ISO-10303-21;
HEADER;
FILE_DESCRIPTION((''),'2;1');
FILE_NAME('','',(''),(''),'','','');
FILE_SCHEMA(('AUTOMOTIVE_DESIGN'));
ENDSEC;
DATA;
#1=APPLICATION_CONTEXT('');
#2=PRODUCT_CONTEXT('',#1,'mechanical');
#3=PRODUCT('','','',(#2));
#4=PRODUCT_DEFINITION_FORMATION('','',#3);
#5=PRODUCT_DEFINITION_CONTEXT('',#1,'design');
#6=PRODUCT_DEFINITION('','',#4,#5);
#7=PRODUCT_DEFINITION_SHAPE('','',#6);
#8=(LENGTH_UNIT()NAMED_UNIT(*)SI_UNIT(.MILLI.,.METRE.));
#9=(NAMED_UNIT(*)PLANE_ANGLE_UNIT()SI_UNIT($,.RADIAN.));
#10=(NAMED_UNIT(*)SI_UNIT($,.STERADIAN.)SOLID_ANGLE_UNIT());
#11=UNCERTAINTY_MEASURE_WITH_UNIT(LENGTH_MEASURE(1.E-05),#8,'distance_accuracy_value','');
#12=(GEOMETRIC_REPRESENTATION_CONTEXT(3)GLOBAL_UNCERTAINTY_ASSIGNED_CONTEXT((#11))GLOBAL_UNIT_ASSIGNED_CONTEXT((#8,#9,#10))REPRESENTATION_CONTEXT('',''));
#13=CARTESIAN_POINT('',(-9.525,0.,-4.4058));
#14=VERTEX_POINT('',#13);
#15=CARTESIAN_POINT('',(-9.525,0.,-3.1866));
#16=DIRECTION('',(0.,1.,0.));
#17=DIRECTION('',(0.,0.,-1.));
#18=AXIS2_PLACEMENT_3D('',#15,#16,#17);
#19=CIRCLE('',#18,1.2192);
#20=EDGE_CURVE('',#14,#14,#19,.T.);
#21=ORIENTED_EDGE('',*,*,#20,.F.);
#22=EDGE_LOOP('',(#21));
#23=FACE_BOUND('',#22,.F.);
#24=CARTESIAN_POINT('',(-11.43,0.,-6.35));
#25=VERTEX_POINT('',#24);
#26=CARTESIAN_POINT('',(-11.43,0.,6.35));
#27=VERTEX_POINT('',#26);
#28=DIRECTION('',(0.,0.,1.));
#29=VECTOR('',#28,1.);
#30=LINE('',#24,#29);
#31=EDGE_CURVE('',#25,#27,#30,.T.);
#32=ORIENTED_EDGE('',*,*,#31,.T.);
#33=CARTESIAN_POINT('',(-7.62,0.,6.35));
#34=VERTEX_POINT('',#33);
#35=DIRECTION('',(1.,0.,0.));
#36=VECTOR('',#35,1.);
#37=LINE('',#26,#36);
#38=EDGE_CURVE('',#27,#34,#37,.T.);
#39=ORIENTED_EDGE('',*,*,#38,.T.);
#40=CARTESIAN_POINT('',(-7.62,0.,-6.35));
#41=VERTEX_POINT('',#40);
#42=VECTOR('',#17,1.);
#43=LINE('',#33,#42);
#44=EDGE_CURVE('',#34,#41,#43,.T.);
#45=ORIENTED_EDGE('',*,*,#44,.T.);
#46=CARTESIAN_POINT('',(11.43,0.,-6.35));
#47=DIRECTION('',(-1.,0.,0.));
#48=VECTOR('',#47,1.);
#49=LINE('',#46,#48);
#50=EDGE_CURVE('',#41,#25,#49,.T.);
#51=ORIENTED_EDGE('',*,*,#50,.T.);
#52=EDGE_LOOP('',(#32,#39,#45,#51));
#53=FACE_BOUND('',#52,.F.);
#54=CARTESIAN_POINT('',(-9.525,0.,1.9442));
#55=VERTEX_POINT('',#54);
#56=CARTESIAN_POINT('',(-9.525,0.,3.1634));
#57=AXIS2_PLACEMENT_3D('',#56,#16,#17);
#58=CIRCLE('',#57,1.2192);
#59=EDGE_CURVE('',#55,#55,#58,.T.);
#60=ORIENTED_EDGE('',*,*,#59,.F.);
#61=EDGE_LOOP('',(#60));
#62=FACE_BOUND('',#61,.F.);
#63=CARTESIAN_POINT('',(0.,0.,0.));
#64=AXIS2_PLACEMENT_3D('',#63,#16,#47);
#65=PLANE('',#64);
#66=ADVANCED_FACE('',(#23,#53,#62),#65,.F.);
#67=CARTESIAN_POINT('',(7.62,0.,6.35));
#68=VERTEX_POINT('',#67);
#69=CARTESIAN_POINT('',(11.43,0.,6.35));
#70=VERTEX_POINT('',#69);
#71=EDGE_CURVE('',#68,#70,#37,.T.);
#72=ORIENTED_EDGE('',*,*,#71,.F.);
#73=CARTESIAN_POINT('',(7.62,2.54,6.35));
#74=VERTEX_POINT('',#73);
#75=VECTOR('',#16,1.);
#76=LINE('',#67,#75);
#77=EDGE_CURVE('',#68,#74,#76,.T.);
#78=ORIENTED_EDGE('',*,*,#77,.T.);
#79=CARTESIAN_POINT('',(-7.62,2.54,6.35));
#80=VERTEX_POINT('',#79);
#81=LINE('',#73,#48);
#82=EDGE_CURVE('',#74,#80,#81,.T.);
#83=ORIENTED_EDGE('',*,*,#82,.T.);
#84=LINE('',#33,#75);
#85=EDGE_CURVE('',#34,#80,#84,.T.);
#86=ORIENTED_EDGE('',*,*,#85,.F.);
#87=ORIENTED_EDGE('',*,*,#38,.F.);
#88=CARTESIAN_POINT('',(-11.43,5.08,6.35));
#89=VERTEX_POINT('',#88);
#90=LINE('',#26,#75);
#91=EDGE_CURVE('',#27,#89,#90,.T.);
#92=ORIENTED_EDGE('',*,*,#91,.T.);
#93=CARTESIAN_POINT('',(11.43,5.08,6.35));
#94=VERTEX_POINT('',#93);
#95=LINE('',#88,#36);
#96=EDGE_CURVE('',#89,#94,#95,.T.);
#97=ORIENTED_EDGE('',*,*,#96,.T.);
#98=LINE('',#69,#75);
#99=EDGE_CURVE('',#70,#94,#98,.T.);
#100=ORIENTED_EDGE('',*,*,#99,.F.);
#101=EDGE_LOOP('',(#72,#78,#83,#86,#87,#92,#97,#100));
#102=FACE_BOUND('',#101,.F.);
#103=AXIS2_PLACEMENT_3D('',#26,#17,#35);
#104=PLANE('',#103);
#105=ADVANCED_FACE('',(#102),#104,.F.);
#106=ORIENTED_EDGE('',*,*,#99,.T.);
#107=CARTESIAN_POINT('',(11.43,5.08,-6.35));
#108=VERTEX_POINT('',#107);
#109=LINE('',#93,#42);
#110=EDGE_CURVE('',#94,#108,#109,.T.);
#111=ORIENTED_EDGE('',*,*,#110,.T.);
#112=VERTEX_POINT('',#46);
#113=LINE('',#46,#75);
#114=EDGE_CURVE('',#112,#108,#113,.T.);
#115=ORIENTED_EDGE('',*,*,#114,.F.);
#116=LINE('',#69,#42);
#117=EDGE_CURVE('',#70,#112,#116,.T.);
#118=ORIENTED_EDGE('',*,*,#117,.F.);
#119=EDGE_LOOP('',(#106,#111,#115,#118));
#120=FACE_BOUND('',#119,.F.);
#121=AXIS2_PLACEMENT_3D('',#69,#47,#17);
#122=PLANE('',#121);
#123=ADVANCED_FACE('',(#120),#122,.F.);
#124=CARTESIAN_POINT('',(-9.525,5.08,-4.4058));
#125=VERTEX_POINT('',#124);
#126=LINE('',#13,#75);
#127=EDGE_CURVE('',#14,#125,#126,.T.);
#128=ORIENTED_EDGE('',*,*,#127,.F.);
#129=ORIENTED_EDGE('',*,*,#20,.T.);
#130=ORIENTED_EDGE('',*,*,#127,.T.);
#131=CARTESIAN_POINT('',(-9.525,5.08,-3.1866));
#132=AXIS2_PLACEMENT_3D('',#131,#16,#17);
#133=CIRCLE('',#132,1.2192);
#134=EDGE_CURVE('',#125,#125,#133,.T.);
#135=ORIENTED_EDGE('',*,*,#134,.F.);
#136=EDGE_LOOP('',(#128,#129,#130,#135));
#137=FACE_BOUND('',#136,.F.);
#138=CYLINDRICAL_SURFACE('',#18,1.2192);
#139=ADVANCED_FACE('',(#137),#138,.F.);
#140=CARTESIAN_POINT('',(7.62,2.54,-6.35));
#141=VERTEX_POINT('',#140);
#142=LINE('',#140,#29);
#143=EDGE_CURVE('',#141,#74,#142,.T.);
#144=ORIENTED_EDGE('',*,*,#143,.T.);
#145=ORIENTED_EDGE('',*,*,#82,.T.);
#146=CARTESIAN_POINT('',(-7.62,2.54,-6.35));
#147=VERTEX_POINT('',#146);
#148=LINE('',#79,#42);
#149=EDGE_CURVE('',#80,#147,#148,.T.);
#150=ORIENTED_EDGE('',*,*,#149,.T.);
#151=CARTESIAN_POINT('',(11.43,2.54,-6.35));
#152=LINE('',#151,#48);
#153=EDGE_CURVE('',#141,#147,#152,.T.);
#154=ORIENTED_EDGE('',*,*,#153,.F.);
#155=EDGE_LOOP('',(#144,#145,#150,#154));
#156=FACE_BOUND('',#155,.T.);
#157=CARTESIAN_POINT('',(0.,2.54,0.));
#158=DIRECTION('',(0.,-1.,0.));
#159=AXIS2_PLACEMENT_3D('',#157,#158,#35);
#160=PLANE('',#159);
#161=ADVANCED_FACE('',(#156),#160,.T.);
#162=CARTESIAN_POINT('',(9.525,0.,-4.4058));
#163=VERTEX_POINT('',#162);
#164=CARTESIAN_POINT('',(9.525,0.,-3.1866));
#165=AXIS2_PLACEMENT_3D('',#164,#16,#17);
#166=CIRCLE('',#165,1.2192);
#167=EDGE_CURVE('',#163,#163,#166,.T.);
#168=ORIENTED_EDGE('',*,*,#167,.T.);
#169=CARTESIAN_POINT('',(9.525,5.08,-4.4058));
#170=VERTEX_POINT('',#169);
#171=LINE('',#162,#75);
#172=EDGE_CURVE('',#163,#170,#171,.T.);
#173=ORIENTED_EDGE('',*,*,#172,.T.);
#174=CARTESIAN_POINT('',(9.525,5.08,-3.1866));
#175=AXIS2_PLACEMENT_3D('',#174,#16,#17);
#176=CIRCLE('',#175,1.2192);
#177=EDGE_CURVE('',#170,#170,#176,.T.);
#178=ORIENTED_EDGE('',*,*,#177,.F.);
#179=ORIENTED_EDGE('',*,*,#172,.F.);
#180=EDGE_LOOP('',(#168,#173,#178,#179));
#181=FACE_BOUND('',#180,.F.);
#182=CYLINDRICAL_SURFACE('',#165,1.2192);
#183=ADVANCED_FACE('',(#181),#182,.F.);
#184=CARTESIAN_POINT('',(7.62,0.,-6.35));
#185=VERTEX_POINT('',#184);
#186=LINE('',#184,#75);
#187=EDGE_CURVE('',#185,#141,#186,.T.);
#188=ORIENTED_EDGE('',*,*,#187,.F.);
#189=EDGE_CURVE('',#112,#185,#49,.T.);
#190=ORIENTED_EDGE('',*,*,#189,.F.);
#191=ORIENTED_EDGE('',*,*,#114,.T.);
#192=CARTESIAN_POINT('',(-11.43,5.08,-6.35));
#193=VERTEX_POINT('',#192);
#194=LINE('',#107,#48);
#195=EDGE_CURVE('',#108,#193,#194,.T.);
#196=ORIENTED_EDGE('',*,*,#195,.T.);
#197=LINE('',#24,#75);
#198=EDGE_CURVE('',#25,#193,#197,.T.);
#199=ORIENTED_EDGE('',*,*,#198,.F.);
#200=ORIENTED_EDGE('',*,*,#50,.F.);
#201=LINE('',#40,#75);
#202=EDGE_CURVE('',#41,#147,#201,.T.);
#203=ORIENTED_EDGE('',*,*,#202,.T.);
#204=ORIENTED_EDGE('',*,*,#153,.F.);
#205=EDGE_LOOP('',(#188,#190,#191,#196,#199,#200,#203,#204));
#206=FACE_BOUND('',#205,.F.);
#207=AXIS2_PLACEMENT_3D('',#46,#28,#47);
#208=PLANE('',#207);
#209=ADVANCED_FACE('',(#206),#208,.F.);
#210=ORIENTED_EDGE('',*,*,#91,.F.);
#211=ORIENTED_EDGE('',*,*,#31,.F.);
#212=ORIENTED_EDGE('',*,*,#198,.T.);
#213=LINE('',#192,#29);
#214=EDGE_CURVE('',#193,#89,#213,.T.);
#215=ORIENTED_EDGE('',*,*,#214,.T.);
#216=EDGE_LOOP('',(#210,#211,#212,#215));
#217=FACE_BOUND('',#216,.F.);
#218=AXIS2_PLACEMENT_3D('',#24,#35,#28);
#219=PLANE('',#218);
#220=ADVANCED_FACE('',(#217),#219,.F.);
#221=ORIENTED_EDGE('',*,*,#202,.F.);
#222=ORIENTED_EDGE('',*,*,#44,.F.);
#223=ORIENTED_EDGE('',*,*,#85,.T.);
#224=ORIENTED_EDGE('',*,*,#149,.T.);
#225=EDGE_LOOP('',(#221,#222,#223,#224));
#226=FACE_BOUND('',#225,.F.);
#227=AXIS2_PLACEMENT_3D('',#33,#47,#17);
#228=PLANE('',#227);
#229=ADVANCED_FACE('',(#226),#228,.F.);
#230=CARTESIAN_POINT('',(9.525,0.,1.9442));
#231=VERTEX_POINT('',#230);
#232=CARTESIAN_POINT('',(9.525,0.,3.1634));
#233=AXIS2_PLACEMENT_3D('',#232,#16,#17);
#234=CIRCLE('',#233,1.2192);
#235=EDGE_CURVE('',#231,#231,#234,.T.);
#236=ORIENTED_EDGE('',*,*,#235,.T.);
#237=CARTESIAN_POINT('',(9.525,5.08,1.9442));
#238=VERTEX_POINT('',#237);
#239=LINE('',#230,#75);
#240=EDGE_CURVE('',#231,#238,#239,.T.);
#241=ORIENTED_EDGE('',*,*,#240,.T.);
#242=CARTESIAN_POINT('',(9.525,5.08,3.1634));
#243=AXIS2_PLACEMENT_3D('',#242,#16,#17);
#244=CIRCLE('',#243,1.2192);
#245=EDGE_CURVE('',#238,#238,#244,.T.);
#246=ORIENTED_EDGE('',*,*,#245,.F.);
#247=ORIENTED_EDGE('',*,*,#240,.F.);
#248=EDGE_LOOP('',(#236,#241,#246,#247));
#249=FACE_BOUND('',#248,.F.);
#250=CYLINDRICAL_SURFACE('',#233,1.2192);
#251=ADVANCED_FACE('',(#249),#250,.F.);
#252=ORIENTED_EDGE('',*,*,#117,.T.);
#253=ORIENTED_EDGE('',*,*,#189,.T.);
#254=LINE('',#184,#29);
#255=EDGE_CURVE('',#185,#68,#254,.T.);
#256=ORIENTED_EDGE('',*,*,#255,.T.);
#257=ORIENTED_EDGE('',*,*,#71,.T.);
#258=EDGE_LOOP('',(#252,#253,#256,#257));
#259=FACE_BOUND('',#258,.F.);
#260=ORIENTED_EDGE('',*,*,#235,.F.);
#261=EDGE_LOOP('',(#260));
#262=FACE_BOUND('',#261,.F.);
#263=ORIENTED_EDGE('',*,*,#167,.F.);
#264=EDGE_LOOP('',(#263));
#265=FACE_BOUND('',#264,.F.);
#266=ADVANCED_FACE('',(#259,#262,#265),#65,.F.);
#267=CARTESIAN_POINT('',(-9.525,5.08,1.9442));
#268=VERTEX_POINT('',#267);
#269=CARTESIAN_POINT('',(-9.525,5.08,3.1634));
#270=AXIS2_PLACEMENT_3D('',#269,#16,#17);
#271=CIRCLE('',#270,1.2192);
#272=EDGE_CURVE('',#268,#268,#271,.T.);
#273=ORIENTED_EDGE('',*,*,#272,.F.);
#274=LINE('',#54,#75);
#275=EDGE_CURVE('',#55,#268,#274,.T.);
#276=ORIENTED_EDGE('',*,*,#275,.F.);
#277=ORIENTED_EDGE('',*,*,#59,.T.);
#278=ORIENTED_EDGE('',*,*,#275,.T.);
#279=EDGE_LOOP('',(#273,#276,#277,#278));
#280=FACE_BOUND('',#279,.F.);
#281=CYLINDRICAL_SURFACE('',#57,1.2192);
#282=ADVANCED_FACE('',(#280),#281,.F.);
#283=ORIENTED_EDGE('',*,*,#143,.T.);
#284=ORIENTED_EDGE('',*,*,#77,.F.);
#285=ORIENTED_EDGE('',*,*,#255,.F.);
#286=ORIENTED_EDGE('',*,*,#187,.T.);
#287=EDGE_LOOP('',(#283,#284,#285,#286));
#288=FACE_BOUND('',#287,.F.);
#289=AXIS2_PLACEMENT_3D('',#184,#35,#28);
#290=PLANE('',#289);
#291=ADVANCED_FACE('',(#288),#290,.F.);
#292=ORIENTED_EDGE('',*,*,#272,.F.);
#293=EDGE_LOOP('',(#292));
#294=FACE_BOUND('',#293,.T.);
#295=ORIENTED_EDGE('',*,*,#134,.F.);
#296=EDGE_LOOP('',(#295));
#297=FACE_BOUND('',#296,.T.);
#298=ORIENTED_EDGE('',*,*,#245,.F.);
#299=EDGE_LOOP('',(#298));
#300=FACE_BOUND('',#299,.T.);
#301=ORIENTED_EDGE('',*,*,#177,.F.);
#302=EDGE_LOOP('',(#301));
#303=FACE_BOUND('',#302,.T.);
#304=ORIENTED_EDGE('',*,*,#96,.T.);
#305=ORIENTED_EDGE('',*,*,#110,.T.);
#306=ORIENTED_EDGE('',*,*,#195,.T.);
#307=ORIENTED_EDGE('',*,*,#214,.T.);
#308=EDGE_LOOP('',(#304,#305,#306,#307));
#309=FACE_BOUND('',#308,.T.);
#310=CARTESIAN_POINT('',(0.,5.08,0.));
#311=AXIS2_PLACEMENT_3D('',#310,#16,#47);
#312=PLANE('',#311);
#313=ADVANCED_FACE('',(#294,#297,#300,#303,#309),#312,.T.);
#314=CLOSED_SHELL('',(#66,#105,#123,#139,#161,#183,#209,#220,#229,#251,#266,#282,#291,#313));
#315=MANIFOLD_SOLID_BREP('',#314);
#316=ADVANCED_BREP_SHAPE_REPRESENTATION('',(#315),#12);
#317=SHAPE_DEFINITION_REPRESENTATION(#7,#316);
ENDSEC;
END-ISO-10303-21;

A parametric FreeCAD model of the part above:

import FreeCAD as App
import Part
import Sketcher

V = App.Vector
Q = App.Units.Quantity


def add_polygon(sketch, points):
    """Adds a closed chain of lines whose ends are joined by coincident constraints."""
    first, n = sketch.GeometryCount, len(points)
    for a, b in zip(points, points[1:] + points[:1]):
        sketch.addGeometry(Part.LineSegment(App.Vector(*a, 0), App.Vector(*b, 0)), False)
    for i in range(n):
        sketch.addConstraint(Sketcher.Constraint("Coincident", first + i, 2, first + (i + 1) % n, 1))

doc = App.newDocument("Part")
body = doc.addObject("PartDesign::Body", "Body")

# Sketch on XZ plane
sketch1 = body.newObject("Sketcher::SketchObject", "Sketch")
sketch1.AttachmentSupport = (doc.getObject("XZ_Plane"), [""])
sketch1.MapMode = "FlatFace"
add_polygon(sketch1, [(11.43, 6.35), (11.43, -6.35), (-11.43, -6.35), (-11.43, 6.35)])  # lines 0-3
sketch1.addConstraint([
    Sketcher.Constraint("Vertical", 0),
    Sketcher.Constraint("Horizontal", 1),
    Sketcher.Constraint("Vertical", 2),
    Sketcher.Constraint("Horizontal", 3),
    Sketcher.Constraint("Symmetric", 0, 2, 2, 2, -1, 1),
    Sketcher.Constraint("DistanceX", 1, 2, 1, 1, Q("0.9 in")),
    Sketcher.Constraint("DistanceY", 0, 2, 0, 1, Q("0.5 in")),
])
pad1 = body.newObject("PartDesign::Pad", "Pad")
pad1.Profile = sketch1
pad1.Length = Q("0.2 in")
pad1.Reversed = True

# Sketch on XZ plane
sketch2 = body.newObject("Sketcher::SketchObject", "Sketch001")
sketch2.AttachmentSupport = (doc.getObject("XZ_Plane"), [""])
sketch2.MapMode = "FlatFace"
sketch2.addGeometry([
    Part.Circle(V(-9.525, 3.1634, 0), V(0, 0, 1), 1.2192),
    Part.Circle(V(-9.525, -3.1866, 0), V(0, 0, 1), 1.2192),
    Part.Circle(V(9.525, -3.1866, 0), V(0, 0, 1), 1.2192),
    Part.Circle(V(9.525, 3.1634, 0), V(0, 0, 1), 1.2192),
], False)
sketch2.addConstraint([
    Sketcher.Constraint("Equal", 0, 1),
    Sketcher.Constraint("Equal", 1, 2),
    Sketcher.Constraint("Equal", 2, 3),
    Sketcher.Constraint("Symmetric", 1, 3, 2, 3, -2),
    Sketcher.Constraint("Symmetric", 0, 3, 3, 3, -2),
    Sketcher.Constraint("Vertical", 0, 3, 1, 3),
    Sketcher.Constraint("Diameter", 0, Q("0.096 in")),
    Sketcher.Constraint("DistanceY", 1, 3, 0, 3, Q("0.25 in")),
    Sketcher.Constraint("DistanceX", 1, 3, 2, 3, Q("0.75 in")),
    Sketcher.Constraint("DistanceY", -1, 1, 0, 3, Q("3.1634 mm")),
])
doc.recompute()
hole = body.newObject("PartDesign::Hole", "Hole")
hole.Profile = sketch2
hole.ThreadType = "None"
hole.Diameter = Q("0.096 in")
hole.DepthType = "Dimension"
hole.Depth = Q("0.2 in")
hole.DrillPoint = "Flat"

# Sketch on XZ plane
sketch3 = body.newObject("Sketcher::SketchObject", "Sketch002")
sketch3.AttachmentSupport = (doc.getObject("XZ_Plane"), [""])
sketch3.MapMode = "FlatFace"
add_polygon(sketch3, [(-7.62, -6.35), (7.62, -6.35), (7.62, 6.35), (-7.62, 6.35)])  # lines 0-3
sketch3.addConstraint([
    Sketcher.Constraint("Horizontal", 0),
    Sketcher.Constraint("Vertical", 1),
    Sketcher.Constraint("Horizontal", 2),
    Sketcher.Constraint("Vertical", 3),
    Sketcher.Constraint("Symmetric", 0, 2, 2, 2, -1, 1),
    Sketcher.Constraint("DistanceX", 0, 1, 0, 2, Q("0.6 in")),
    Sketcher.Constraint("DistanceY", 1, 1, 1, 2, Q("0.5 in")),
])
pocket1 = body.newObject("PartDesign::Pocket", "Pocket")
pocket1.Profile = sketch3
pocket1.Length = Q("0.1 in")

doc.recompute()
